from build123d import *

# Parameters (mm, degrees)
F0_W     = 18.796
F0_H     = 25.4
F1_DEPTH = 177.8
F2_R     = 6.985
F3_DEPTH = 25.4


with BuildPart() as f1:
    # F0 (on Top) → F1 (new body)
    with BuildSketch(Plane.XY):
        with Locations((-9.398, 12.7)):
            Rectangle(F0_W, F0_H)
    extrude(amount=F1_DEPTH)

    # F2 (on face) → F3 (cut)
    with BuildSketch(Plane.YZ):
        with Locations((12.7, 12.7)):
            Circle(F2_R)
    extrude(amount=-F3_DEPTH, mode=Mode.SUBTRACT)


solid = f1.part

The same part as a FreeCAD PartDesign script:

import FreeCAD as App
import Part
import Sketcher
from FreeCAD import Vector
Q = App.Units.Quantity

doc = App.newDocument("Part")
body = doc.addObject("PartDesign::Body", "Body")

# Sketch on XY plane
sketch1 = body.newObject("Sketcher::SketchObject", "Sketch")
sketch1.AttachmentSupport = (doc.getObject("XY_Plane"), [""])
sketch1.MapMode = "FlatFace"
sketch1.addGeometry(Part.LineSegment(Vector(-19, 25, 0), Vector(-19, 0, 0)), False)
sketch1.addGeometry(Part.LineSegment(Vector(-19, 0, 0), Vector(0, 0, 0)), False)
sketch1.addGeometry(Part.LineSegment(Vector(0, 0, 0), Vector(0, 25, 0)), False)
sketch1.addGeometry(Part.LineSegment(Vector(0, 25, 0), Vector(-19, 25, 0)), False)
sketch1.addConstraint(Sketcher.Constraint("Coincident", 0, 2, 1, 1))
sketch1.addConstraint(Sketcher.Constraint("Coincident", 1, 2, 2, 1))
sketch1.addConstraint(Sketcher.Constraint("Coincident", 2, 2, 3, 1))
sketch1.addConstraint(Sketcher.Constraint("Coincident", 3, 2, 0, 1))
sketch1.addConstraint(Sketcher.Constraint("Vertical", 0))
sketch1.addConstraint(Sketcher.Constraint("Horizontal", 1))
sketch1.addConstraint(Sketcher.Constraint("Vertical", 2))
sketch1.addConstraint(Sketcher.Constraint("Horizontal", 3))
sketch1.addConstraint(Sketcher.Constraint("Coincident", 1, 2, -1, 1))
sketch1.addConstraint(Sketcher.Constraint("DistanceY", 0, 2, 0, 1, Q("1 in")))
sketch1.addConstraint(Sketcher.Constraint("DistanceX", 1, 1, 1, 2, Q("0.74 in")))
pad1 = body.newObject("PartDesign::Pad", "Pad")
pad1.Profile = sketch1
pad1.Length = Q("7 in")

# Sketch on YZ plane
sketch2 = body.newObject("Sketcher::SketchObject", "Sketch001")
sketch2.AttachmentSupport = (doc.getObject("YZ_Plane"), [""])
sketch2.MapMode = "FlatFace"
sketch2.addGeometry(Part.Circle(Vector(13, 13, 0), Vector(0, 0, 1), 7), False)
sketch2.addConstraint(Sketcher.Constraint("Diameter", 0, Q("0.55 in")))
sketch2.addConstraint(Sketcher.Constraint("DistanceX", -1, 1, 0, 3, Q("0.5 in")))
sketch2.addConstraint(Sketcher.Constraint("DistanceY", -1, 1, 0, 3, Q("0.5 in")))
pocket1 = body.newObject("PartDesign::Pocket", "Pocket")
pocket1.Profile = sketch2
pocket1.Length = Q("1 in")

doc.recompute()
